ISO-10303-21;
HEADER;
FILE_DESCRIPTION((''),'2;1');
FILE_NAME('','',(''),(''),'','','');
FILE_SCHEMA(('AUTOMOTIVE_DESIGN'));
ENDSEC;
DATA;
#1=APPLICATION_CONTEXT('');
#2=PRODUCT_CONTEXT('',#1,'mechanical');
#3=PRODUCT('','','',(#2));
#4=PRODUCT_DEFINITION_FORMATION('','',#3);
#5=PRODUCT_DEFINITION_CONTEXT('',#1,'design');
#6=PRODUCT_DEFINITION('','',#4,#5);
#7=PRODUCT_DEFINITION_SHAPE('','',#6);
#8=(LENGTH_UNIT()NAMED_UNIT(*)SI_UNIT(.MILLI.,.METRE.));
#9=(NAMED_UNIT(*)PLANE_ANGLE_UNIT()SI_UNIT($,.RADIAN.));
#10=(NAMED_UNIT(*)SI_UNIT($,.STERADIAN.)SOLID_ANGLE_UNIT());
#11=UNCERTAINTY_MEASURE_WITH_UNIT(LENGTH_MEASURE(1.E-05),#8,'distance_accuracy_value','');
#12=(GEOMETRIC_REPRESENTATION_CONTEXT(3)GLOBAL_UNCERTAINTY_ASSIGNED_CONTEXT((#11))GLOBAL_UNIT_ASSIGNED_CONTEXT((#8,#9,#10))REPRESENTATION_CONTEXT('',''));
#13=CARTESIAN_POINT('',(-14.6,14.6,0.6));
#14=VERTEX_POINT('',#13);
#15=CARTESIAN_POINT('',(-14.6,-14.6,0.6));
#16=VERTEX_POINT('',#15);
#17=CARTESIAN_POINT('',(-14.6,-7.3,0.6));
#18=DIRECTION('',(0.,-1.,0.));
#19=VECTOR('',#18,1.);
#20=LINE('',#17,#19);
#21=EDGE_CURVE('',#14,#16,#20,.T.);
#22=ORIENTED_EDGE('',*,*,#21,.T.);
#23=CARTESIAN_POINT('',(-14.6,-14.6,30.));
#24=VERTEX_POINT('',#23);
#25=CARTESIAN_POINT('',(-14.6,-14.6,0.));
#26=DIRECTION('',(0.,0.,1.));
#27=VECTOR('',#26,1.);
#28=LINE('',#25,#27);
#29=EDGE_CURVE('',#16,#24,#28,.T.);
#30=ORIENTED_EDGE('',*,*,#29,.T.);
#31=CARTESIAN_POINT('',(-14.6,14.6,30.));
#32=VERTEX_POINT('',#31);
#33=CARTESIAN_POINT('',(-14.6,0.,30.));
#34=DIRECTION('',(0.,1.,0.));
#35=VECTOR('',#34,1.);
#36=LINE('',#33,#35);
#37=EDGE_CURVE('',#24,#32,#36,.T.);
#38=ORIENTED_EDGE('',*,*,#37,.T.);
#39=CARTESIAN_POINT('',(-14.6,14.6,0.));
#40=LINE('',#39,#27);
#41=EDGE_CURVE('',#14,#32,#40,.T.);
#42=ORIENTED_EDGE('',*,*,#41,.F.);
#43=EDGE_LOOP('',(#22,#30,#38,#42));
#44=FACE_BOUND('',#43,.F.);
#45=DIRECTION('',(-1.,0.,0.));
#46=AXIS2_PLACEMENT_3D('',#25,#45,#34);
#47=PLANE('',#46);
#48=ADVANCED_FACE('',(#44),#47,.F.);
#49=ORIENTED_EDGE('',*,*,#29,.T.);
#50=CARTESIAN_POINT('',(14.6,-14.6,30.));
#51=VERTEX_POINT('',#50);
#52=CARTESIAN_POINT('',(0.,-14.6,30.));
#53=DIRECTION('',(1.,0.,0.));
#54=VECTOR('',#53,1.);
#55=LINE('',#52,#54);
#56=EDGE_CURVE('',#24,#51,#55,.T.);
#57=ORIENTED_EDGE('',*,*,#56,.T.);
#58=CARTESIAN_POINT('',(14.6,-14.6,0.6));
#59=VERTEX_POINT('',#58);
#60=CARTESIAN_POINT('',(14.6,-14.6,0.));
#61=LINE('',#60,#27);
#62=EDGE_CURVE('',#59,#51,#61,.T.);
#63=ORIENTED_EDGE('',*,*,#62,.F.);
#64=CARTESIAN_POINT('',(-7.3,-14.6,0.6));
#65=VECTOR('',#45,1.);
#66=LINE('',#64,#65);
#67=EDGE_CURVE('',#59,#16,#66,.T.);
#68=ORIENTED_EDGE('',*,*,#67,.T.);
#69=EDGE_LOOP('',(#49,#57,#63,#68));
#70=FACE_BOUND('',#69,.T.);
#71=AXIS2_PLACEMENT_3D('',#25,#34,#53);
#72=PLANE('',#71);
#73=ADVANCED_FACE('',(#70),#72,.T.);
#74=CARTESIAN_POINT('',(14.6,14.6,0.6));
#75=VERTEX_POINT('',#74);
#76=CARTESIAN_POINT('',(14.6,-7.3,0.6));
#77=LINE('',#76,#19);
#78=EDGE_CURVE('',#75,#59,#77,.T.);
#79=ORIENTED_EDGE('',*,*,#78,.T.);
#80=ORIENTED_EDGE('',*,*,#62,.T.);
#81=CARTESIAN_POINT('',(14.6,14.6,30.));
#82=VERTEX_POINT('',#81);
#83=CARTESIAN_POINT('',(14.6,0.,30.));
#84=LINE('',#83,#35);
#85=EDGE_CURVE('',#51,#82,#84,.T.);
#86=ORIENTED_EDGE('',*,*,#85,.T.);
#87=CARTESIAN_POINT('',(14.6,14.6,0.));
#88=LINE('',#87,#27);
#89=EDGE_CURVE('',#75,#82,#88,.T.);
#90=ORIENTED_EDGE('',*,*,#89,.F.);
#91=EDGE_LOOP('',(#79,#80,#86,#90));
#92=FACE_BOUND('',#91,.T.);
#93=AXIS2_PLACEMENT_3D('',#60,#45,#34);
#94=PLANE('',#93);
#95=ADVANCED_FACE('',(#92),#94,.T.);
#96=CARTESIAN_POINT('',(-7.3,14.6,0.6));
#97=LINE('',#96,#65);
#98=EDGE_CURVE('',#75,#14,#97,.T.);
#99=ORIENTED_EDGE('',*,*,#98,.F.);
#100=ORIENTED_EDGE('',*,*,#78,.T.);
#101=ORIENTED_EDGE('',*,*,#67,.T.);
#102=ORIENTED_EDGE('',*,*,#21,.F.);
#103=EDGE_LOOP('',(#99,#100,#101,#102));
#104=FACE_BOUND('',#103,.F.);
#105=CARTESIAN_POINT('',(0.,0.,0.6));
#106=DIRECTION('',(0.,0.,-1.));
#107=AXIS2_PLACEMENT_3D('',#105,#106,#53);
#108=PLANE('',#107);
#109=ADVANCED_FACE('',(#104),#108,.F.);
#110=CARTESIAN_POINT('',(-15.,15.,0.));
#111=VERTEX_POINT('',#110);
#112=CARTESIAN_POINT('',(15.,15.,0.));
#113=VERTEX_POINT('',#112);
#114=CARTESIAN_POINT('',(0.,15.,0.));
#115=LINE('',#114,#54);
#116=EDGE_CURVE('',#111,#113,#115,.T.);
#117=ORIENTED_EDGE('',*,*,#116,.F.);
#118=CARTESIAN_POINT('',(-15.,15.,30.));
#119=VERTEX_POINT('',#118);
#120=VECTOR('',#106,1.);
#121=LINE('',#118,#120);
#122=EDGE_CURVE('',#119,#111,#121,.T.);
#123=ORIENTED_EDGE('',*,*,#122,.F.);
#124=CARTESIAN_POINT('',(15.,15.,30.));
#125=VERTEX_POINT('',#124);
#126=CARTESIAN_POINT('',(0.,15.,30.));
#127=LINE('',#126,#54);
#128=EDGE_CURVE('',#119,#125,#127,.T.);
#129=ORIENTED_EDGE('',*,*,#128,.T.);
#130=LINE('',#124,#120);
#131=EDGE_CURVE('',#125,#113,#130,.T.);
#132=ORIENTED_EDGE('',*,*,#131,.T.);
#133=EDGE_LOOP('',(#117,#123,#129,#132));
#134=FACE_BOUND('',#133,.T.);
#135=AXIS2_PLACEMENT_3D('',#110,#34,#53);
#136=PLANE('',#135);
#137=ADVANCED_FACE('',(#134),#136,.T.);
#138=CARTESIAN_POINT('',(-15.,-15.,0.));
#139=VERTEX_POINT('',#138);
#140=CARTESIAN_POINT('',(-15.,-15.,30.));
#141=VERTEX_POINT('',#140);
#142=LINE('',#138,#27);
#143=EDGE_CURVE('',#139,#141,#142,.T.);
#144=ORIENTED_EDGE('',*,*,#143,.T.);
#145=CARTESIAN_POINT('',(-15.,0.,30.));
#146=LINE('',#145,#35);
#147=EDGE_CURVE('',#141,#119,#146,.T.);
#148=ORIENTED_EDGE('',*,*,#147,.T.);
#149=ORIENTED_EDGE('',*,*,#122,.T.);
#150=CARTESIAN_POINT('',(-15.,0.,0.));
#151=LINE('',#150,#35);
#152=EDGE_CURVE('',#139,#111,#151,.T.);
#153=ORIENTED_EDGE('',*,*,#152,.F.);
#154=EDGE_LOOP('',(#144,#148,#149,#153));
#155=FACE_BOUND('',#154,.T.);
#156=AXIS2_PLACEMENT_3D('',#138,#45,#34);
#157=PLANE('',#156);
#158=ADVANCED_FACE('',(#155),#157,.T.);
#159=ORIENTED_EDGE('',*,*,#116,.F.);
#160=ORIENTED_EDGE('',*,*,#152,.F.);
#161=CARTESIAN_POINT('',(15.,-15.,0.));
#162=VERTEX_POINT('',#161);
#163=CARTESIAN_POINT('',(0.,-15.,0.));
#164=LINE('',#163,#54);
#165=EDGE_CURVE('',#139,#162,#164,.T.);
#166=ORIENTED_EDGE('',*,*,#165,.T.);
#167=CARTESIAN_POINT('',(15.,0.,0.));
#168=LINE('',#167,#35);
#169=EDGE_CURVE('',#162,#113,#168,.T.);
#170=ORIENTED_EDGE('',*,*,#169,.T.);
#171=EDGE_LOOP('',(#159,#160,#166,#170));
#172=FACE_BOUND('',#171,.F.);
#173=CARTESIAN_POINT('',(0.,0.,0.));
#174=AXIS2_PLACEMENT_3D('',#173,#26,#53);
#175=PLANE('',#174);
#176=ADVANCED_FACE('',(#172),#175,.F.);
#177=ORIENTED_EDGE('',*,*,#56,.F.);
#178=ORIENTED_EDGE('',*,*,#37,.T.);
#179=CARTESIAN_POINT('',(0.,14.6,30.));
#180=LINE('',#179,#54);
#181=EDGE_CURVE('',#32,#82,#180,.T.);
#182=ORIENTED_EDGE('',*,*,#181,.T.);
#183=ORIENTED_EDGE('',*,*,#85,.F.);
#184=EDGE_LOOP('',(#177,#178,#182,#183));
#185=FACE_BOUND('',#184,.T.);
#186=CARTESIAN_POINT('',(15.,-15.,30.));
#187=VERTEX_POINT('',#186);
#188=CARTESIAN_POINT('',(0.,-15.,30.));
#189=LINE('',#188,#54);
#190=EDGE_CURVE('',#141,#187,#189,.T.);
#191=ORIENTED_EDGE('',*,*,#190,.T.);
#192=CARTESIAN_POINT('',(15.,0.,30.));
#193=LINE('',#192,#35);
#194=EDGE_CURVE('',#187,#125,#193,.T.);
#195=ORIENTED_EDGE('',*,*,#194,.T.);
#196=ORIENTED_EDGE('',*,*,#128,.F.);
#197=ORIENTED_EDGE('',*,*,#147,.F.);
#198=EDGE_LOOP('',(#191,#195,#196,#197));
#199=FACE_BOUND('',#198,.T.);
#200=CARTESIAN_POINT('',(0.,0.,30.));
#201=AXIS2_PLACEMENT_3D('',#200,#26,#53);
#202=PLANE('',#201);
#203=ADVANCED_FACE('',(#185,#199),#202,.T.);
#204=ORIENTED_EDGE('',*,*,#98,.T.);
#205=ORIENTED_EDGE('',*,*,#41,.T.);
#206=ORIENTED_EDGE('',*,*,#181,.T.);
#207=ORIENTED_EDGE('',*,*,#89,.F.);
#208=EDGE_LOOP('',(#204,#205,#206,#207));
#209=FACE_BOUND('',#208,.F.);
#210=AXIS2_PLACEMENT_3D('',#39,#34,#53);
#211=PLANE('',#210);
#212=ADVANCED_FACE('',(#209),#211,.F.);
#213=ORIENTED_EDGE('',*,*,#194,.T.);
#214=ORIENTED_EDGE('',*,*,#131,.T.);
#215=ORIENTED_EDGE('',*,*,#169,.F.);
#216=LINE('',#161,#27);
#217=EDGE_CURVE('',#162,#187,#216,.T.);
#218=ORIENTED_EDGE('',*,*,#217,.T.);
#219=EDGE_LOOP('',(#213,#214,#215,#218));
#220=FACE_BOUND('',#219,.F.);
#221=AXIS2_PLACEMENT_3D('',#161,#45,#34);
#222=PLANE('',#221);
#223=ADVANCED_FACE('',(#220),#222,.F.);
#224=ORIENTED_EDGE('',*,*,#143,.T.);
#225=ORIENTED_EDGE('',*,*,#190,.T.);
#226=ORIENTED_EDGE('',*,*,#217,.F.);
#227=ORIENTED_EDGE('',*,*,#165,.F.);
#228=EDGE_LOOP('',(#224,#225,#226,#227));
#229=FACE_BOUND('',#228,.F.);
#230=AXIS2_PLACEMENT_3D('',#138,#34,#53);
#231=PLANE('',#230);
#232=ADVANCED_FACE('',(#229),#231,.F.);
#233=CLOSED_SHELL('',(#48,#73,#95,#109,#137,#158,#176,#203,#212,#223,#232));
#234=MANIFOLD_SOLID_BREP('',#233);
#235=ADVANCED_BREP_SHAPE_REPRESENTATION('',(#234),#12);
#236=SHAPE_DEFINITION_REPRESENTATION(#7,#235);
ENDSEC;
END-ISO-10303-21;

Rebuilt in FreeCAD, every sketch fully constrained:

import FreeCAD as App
import Part
import Sketcher
from FreeCAD import Vector
Q = App.Units.Quantity

doc = App.newDocument("Part")
body = doc.addObject("PartDesign::Body", "Body")

# Sketch on XY plane
sketch1 = body.newObject("Sketcher::SketchObject", "Sketch")
sketch1.AttachmentSupport = (doc.getObject("XY_Plane"), [""])
sketch1.MapMode = "FlatFace"
sketch1.addGeometry([
    Part.LineSegment(Vector(-15, 15, 0), Vector(-15, -15, 0)),  # 0
    Part.LineSegment(Vector(-15, -15, 0), Vector(15, -15, 0)),  # 1
    Part.LineSegment(Vector(15, -15, 0), Vector(15, 15, 0)),  # 2
    Part.LineSegment(Vector(15, 15, 0), Vector(-15, 15, 0)),  # 3
    Part.LineSegment(Vector(14.6, -14.6, 0), Vector(-14.6, -14.6, 0)),  # 4
    Part.LineSegment(Vector(-14.6, -14.6, 0), Vector(-14.6, 14.6, 0)),  # 5
    Part.LineSegment(Vector(-14.6, 14.6, 0), Vector(14.6, 14.6, 0)),  # 6
    Part.LineSegment(Vector(14.6, 14.6, 0), Vector(14.6, -14.6, 0)),  # 7
], False)
sketch1.addConstraint([
    Sketcher.Constraint("Coincident", 0, 2, 1, 1),
    Sketcher.Constraint("Coincident", 1, 2, 2, 1),
    Sketcher.Constraint("Coincident", 2, 2, 3, 1),
    Sketcher.Constraint("Coincident", 3, 2, 0, 1),
    Sketcher.Constraint("Coincident", 4, 2, 5, 1),
    Sketcher.Constraint("Coincident", 5, 2, 6, 1),
    Sketcher.Constraint("Coincident", 6, 2, 7, 1),
    Sketcher.Constraint("Coincident", 7, 2, 4, 1),
    Sketcher.Constraint("Vertical", 0),
    Sketcher.Constraint("Horizontal", 1),
    Sketcher.Constraint("Vertical", 2),
    Sketcher.Constraint("Horizontal", 3),
    Sketcher.Constraint("Horizontal", 4),
    Sketcher.Constraint("Vertical", 5),
    Sketcher.Constraint("Horizontal", 6),
    Sketcher.Constraint("Vertical", 7),
    Sketcher.Constraint("Symmetric", 0, 2, 2, 2, -1, 1),
    Sketcher.Constraint("Symmetric", 4, 2, 6, 2, -1, 1),
    Sketcher.Constraint("Equal", 3, 0),
    Sketcher.Constraint("Equal", 6, 5),
    Sketcher.Constraint("DistanceX", 1, 1, 1, 2, Q("30 mm")),
    Sketcher.Constraint("DistanceX", 4, 2, 4, 1, Q("29.2 mm")),
])
pad1 = body.newObject("PartDesign::Pad", "Pad")
pad1.Profile = sketch1
pad1.Length = 30

# Sketch on XY plane
sketch2 = body.newObject("Sketcher::SketchObject", "Sketch001")
sketch2.AttachmentSupport = (doc.getObject("XY_Plane"), [""])
sketch2.MapMode = "FlatFace"
sketch2.addGeometry([
    Part.LineSegment(Vector(-15, -15, 0), Vector(-15, 15, 0)),
    Part.LineSegment(Vector(-15, 15, 0), Vector(15, 15, 0)),
    Part.LineSegment(Vector(15, 15, 0), Vector(15, -15, 0)),
    Part.LineSegment(Vector(15, -15, 0), Vector(-15, -15, 0)),
], False)
sketch2.addConstraint([
    Sketcher.Constraint("Coincident", 0, 2, 1, 1),
    Sketcher.Constraint("Coincident", 1, 2, 2, 1),
    Sketcher.Constraint("Coincident", 2, 2, 3, 1),
    Sketcher.Constraint("Coincident", 3, 2, 0, 1),
    Sketcher.Constraint("Vertical", 0),
    Sketcher.Constraint("Horizontal", 1),
    Sketcher.Constraint("Vertical", 2),
    Sketcher.Constraint("Horizontal", 3),
    Sketcher.Constraint("Symmetric", 0, 2, 2, 2, -1, 1),
    Sketcher.Constraint("Equal", 3, 0),
    Sketcher.Constraint("DistanceX", 1, 1, 1, 2, Q("30 mm")),
])
pad2 = body.newObject("PartDesign::Pad", "Pad001")
pad2.Profile = sketch2
pad2.Length = 0.6

doc.recompute()
